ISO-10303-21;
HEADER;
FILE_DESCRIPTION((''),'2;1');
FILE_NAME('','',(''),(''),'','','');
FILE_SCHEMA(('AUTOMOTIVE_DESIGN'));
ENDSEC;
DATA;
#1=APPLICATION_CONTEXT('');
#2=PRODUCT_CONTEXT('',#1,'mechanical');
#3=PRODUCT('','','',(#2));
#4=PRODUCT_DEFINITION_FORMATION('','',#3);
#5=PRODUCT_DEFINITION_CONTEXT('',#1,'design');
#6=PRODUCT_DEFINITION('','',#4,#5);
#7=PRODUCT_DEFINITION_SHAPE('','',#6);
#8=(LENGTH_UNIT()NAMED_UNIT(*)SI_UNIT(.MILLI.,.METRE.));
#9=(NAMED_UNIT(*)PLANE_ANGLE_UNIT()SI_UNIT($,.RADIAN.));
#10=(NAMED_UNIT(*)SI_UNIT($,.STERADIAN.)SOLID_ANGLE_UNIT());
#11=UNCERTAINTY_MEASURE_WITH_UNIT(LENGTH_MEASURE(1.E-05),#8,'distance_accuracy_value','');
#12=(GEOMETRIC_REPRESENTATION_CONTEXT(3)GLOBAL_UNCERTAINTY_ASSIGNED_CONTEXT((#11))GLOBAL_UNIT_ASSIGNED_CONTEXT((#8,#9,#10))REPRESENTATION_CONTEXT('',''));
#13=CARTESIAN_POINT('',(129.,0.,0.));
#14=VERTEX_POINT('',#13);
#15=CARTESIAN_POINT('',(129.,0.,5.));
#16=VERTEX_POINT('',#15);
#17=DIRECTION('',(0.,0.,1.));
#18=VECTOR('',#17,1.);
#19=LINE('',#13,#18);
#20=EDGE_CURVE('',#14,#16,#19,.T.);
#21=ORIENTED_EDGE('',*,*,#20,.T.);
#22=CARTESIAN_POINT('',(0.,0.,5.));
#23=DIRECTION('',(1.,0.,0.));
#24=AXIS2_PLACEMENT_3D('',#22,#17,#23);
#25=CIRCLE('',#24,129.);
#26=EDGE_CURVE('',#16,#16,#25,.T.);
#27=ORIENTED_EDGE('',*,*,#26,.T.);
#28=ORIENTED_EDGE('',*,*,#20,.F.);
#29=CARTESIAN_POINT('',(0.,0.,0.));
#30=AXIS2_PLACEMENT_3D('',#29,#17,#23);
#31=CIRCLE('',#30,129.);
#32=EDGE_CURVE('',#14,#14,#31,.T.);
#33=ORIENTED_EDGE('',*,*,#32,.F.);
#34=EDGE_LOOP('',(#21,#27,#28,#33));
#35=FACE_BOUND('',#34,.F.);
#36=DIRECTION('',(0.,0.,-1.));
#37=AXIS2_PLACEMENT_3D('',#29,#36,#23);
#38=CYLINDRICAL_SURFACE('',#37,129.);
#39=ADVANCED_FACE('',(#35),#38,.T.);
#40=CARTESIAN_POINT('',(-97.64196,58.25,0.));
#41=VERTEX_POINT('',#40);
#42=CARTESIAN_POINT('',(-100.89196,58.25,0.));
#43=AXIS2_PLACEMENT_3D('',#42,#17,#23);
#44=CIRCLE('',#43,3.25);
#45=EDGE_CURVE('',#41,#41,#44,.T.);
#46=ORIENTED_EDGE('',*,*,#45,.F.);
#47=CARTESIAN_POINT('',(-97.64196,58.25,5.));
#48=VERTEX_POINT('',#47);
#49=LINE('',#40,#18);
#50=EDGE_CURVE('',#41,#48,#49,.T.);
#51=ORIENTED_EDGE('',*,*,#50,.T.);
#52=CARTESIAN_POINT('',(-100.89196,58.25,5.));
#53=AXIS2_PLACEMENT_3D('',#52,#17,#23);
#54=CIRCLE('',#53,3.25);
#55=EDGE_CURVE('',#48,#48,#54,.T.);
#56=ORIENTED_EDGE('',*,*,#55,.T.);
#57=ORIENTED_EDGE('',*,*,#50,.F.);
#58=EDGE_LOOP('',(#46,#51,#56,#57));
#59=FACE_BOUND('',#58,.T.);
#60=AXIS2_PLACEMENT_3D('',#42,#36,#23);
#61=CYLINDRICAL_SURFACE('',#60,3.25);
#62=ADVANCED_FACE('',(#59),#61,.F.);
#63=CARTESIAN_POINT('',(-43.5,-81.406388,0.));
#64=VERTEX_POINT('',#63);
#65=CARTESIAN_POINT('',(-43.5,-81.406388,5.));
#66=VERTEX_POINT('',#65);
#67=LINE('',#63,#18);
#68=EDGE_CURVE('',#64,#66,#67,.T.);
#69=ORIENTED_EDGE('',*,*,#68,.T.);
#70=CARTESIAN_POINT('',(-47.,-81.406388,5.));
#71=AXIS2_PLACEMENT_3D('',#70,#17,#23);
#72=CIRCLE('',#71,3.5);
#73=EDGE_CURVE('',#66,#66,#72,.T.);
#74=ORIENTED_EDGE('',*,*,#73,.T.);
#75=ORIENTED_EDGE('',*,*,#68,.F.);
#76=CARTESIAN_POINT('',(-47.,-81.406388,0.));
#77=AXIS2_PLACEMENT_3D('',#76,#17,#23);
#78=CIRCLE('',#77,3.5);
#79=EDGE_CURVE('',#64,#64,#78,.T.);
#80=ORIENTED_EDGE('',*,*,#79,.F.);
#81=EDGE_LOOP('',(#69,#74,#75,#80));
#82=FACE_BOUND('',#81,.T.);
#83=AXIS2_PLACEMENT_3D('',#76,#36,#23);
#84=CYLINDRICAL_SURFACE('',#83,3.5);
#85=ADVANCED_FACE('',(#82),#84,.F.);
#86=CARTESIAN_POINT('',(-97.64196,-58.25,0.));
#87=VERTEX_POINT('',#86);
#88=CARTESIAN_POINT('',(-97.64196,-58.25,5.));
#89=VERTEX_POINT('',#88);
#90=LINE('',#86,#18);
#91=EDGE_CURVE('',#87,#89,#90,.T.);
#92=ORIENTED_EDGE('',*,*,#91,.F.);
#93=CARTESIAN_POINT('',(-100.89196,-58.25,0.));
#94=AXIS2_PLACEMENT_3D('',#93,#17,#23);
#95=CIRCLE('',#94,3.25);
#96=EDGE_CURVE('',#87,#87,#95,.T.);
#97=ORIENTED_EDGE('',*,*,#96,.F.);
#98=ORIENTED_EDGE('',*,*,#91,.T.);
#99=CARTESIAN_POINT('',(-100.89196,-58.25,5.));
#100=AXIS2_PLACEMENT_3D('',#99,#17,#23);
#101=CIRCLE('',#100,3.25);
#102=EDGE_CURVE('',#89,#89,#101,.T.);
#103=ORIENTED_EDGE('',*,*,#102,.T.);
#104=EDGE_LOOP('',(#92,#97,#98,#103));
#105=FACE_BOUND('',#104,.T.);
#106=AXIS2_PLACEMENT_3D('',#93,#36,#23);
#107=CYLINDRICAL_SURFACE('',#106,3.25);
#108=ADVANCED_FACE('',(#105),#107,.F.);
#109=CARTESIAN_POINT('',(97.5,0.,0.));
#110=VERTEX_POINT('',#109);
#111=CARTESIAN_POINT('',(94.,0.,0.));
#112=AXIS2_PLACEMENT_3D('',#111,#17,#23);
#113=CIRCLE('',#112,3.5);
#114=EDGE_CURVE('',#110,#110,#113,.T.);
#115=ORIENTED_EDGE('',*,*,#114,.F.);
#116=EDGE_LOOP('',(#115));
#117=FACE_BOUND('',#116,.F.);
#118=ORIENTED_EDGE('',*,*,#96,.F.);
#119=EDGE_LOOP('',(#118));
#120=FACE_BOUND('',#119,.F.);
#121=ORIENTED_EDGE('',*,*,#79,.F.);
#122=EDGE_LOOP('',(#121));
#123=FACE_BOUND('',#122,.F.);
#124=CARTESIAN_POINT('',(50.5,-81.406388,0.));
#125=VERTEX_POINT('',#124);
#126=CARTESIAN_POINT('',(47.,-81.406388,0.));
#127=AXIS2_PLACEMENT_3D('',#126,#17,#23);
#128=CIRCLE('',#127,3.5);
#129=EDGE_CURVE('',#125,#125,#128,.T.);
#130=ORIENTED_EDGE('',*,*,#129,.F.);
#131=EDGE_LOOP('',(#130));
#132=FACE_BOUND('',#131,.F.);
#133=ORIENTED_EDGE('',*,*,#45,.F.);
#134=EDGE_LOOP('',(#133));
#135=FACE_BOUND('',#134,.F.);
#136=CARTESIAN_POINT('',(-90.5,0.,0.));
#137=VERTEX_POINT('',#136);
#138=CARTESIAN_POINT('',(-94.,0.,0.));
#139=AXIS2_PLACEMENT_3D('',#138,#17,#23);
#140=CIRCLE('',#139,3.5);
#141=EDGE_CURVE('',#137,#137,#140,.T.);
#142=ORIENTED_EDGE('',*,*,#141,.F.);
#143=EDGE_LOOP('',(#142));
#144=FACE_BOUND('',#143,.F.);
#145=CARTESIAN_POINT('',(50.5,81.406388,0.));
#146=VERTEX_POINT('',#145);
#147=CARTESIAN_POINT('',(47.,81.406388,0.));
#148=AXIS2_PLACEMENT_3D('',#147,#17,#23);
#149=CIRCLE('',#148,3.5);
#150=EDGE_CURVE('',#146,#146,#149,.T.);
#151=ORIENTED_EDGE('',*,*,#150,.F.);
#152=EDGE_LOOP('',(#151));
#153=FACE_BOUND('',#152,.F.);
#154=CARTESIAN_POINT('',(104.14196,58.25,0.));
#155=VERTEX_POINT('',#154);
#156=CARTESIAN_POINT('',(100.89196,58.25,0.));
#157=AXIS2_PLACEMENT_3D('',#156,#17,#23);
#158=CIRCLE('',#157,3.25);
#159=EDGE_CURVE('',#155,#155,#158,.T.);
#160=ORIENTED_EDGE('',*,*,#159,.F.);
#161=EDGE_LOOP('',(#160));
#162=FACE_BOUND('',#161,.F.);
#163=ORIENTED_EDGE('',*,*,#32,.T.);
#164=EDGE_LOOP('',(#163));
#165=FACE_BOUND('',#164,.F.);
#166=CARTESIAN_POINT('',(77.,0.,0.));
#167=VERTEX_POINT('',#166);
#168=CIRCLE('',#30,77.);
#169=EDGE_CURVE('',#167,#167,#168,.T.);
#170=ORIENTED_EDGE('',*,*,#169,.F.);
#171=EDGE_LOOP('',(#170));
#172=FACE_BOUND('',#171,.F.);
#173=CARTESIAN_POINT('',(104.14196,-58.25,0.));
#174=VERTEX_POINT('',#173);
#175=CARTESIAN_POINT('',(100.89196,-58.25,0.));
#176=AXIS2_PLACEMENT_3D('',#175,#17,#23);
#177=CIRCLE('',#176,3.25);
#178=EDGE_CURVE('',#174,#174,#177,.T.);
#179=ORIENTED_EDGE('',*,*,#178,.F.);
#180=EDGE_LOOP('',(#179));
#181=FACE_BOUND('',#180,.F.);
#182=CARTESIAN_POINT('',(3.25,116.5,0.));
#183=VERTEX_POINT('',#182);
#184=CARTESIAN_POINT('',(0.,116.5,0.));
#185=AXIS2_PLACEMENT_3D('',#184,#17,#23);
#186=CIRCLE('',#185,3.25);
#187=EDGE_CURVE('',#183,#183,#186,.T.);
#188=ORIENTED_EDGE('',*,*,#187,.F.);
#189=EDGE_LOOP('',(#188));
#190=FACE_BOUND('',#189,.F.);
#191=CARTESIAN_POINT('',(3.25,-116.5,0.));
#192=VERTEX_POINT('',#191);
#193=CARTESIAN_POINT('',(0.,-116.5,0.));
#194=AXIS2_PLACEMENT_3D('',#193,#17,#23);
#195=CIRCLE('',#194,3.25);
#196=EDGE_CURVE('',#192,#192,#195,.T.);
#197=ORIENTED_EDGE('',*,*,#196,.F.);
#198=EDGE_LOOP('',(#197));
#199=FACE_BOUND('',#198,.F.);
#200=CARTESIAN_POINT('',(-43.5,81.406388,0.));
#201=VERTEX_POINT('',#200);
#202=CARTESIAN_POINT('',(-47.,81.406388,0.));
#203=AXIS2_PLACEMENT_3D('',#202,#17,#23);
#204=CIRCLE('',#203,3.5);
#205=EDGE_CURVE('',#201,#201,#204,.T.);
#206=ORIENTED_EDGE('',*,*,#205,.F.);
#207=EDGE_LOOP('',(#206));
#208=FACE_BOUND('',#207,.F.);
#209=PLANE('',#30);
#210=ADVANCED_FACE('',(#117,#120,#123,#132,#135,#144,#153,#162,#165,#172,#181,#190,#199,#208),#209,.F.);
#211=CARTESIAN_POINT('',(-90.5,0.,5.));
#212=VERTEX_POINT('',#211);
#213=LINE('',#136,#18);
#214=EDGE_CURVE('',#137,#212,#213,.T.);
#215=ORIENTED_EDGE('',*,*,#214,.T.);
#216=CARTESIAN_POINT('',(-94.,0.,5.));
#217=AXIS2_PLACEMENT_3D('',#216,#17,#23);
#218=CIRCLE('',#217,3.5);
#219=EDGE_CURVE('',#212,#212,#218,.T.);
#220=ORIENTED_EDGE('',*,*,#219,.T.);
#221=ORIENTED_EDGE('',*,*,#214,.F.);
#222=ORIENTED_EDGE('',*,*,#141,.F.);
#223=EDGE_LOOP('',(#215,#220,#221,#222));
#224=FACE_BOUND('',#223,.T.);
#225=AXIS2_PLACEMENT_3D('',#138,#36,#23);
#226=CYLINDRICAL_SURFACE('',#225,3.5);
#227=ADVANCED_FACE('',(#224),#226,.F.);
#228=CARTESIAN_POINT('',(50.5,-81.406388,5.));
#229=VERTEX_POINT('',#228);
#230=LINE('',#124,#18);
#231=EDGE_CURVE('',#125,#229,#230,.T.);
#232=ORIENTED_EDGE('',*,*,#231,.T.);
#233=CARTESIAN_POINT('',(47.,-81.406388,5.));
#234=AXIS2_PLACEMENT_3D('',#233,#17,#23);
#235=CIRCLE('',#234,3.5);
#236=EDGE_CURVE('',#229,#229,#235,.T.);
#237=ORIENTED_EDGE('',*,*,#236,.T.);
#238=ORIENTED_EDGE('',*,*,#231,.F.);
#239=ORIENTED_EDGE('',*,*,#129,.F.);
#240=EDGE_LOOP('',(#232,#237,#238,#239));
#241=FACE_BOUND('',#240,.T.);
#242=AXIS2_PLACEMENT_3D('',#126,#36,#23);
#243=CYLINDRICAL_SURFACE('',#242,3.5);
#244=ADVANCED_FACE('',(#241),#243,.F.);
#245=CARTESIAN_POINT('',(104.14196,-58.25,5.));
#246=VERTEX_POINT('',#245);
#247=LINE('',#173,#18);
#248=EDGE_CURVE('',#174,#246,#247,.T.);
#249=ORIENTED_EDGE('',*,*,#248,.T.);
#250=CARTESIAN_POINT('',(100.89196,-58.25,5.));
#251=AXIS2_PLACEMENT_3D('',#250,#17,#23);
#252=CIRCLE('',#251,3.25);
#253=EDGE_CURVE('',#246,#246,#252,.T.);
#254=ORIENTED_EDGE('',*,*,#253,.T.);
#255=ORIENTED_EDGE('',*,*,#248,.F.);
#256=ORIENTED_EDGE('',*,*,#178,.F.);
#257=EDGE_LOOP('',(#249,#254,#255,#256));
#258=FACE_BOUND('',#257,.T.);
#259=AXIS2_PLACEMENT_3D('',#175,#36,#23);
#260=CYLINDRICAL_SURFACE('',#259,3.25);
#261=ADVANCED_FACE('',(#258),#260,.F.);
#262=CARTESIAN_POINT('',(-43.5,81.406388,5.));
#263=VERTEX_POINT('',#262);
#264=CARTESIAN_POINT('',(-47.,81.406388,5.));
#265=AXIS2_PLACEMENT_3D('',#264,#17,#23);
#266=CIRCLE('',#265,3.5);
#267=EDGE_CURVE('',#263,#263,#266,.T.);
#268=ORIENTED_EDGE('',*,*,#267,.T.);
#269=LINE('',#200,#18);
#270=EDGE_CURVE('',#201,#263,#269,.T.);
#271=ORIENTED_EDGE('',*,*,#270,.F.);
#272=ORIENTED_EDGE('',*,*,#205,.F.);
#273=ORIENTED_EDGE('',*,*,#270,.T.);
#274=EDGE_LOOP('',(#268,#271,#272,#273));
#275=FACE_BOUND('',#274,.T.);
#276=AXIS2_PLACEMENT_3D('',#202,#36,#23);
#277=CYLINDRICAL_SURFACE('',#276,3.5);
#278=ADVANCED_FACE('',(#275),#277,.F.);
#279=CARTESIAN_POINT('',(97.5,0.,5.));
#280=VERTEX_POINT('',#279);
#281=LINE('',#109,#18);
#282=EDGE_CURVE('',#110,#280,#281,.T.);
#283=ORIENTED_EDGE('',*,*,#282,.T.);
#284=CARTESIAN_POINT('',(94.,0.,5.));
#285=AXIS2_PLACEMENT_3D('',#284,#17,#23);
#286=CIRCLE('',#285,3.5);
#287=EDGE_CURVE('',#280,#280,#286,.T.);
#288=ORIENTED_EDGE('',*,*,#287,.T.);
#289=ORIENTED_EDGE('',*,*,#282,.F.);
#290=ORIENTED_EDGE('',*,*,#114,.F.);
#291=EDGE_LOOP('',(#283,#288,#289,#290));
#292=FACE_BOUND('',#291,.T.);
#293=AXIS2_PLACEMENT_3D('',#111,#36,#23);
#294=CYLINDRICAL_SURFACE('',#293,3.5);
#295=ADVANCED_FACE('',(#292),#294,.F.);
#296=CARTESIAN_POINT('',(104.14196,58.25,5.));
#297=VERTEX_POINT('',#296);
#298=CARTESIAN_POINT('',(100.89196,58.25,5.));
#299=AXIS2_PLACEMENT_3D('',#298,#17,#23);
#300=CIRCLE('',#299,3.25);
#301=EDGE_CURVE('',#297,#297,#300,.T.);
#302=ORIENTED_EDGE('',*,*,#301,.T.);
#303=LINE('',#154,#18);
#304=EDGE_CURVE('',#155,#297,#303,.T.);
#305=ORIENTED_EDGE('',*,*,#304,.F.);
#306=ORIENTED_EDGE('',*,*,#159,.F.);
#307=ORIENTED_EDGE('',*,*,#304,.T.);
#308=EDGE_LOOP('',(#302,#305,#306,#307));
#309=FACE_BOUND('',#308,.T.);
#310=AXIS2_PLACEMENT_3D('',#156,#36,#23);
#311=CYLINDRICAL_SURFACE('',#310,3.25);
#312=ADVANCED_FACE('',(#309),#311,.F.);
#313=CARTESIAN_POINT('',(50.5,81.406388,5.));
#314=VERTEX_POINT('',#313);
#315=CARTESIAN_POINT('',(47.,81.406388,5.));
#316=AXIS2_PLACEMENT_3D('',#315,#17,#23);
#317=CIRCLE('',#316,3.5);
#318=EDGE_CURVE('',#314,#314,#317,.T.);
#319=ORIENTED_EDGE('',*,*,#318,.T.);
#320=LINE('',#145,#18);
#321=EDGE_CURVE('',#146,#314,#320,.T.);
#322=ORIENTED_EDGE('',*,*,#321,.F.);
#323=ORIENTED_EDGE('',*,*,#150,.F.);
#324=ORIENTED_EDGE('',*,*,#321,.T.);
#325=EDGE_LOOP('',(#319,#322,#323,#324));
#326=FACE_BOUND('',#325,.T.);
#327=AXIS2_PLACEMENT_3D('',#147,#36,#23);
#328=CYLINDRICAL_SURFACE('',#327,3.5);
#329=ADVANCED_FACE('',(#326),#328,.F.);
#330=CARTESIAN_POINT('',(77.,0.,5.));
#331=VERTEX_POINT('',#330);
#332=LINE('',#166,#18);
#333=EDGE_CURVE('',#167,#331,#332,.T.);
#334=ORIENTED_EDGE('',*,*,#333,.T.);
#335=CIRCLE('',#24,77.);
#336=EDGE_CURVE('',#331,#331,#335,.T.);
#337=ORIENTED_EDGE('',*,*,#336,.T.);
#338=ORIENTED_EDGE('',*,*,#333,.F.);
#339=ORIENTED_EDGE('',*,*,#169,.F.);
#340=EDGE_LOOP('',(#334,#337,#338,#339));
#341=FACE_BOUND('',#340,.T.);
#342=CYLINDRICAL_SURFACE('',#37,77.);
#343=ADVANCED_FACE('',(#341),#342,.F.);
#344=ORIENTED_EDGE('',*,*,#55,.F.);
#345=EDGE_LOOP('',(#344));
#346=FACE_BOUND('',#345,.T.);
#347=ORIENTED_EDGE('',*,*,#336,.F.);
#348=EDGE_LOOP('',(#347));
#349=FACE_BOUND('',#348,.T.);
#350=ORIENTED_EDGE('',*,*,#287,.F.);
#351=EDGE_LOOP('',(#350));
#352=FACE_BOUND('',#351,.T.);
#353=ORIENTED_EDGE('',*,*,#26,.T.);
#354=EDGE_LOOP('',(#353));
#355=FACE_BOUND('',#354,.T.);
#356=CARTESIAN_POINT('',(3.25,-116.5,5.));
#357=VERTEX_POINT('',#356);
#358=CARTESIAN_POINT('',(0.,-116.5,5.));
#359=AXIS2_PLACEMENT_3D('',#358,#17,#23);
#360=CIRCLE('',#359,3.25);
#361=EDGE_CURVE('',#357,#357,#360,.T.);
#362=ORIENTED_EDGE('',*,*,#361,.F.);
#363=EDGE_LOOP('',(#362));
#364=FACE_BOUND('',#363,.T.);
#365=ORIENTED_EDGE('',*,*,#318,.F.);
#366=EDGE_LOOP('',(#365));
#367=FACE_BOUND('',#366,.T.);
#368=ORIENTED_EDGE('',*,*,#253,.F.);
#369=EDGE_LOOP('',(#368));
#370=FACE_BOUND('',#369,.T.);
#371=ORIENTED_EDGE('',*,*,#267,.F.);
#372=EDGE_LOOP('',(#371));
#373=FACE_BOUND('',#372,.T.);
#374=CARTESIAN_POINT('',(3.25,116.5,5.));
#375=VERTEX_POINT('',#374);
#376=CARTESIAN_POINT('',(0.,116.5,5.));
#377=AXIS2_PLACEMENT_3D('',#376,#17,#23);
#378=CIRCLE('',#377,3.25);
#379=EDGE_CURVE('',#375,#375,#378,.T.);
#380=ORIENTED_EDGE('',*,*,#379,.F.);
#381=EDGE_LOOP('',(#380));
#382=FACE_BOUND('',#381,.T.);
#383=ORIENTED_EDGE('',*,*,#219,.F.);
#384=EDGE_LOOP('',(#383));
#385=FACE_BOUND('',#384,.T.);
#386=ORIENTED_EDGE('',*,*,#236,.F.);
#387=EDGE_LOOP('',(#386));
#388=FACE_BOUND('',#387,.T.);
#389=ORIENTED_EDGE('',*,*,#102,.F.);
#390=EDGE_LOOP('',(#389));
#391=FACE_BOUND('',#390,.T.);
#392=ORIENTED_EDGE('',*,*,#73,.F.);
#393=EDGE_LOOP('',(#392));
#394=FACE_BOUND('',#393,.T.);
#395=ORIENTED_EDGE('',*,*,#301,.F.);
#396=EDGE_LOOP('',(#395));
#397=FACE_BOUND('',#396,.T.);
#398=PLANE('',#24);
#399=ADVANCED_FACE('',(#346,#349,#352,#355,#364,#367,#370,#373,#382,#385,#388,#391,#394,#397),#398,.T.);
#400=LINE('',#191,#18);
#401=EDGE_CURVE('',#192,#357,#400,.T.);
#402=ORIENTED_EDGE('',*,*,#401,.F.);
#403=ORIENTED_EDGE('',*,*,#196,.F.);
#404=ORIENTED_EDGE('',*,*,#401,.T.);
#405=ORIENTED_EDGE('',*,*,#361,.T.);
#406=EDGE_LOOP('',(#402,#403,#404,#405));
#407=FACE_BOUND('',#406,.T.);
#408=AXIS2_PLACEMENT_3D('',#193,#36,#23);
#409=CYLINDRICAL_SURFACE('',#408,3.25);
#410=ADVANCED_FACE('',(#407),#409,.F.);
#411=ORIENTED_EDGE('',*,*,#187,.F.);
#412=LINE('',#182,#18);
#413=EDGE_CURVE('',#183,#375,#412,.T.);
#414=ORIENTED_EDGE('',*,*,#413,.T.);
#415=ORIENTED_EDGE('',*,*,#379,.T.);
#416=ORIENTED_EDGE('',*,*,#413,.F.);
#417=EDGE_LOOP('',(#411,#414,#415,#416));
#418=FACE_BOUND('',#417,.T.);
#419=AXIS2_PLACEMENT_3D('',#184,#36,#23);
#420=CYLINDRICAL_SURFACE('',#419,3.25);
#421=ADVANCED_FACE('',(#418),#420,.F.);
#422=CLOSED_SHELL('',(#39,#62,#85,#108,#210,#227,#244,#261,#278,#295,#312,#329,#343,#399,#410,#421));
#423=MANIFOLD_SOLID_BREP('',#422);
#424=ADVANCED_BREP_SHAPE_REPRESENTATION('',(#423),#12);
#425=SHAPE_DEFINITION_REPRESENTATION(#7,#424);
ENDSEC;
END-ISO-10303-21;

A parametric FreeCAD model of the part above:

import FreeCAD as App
import Part
import Sketcher

V = App.Vector

doc = App.newDocument("Part")
body = doc.addObject("PartDesign::Body", "Body")

# Sketch on XY plane
sketch1 = body.newObject("Sketcher::SketchObject", "Sketch")
sketch1.AttachmentSupport = (doc.getObject("XY_Plane"), [""])
sketch1.MapMode = "FlatFace"
sketch1.addGeometry([
    Part.Circle(V(0, 0, 0), V(0, 0, 1), 129),  # 0
    Part.Circle(V(-47, -81.406388, 0), V(0, 0, 1), 3.5),  # 1
    Part.Circle(V(-100.89196, -58.25, 0), V(0, 0, 1), 3.25),  # 2
    Part.Circle(V(-94, 0, 0), V(0, 0, 1), 3.5),  # 3
    Part.Circle(V(0, -116.5, 0), V(0, 0, 1), 3.25),  # 4
    Part.Circle(V(47, -81.406388, 0), V(0, 0, 1), 3.5),  # 5
    Part.Circle(V(0, 0, 0), V(0, 0, 1), 77),  # 6
    Part.Circle(V(100.89196, -58.25, 0), V(0, 0, 1), 3.25),  # 7
    Part.Circle(V(94, 0, 0), V(0, 0, 1), 3.5),  # 8
    Part.Circle(V(-100.89196, 58.25, 0), V(0, 0, 1), 3.25),  # 9
    Part.Circle(V(-47, 81.406388, 0), V(0, 0, 1), 3.5),  # 10
    Part.Circle(V(100.89196, 58.25, 0), V(0, 0, 1), 3.25),  # 11
    Part.Circle(V(47, 81.406388, 0), V(0, 0, 1), 3.5),  # 12
    Part.Circle(V(0, 116.5, 0), V(0, 0, 1), 3.25),  # 13
], False)
sketch1.addConstraint([
    Sketcher.Constraint("Coincident", 0, 3, -1, 1),
    Sketcher.Constraint("Coincident", 6, 3, -1, 1),
    Sketcher.Constraint("Equal", 1, 3),
    Sketcher.Constraint("Equal", 2, 4),
    Sketcher.Constraint("Equal", 3, 5),
    Sketcher.Constraint("Equal", 4, 7),
    Sketcher.Constraint("Equal", 5, 8),
    Sketcher.Constraint("Equal", 7, 9),
    Sketcher.Constraint("Equal", 8, 10),
    Sketcher.Constraint("Equal", 9, 11),
    Sketcher.Constraint("Equal", 10, 12),
    Sketcher.Constraint("Equal", 11, 13),
    Sketcher.Constraint("Symmetric", 3, 3, 8, 3, -1, 1),
    Sketcher.Constraint("Symmetric", 7, 3, 9, 3, -1, 1),
    Sketcher.Constraint("Symmetric", 5, 3, 10, 3, -1, 1),
    Sketcher.Constraint("Symmetric", 2, 3, 11, 3, -1, 1),
    Sketcher.Constraint("Symmetric", 1, 3, 12, 3, -1, 1),
    Sketcher.Constraint("Symmetric", 4, 3, 13, 3, -1, 1),
    Sketcher.Constraint("Symmetric", 1, 3, 5, 3, -2),
    Sketcher.Constraint("Symmetric", 2, 3, 7, 3, -2),
    Sketcher.Constraint("PointOnObject", 3, 3, -1),
    Sketcher.Constraint("PointOnObject", 4, 3, -2),
    Sketcher.Constraint("Diameter", 0, 258.0),
    Sketcher.Constraint("Diameter", 1, 7.0),
    Sketcher.Constraint("Diameter", 6, 154.0),
    Sketcher.Constraint("Diameter", 2, 6.5),
    Sketcher.Constraint("DistanceX", 1, 3, -1, 1, 47.0),
    Sketcher.Constraint("DistanceX", 3, 3, -1, 1, 94.0),
    Sketcher.Constraint("DistanceY", 4, 3, -1, 1, 116.5),
    Sketcher.Constraint("DistanceY", 2, 3, 9, 3, 116.5),
    Sketcher.Constraint("DistanceY", 1, 3, -1, 1, 81.406388),
    Sketcher.Constraint("DistanceX", 2, 3, -1, 1, 100.89196),
])
pad1 = body.newObject("PartDesign::Pad", "Pad")
pad1.Profile = sketch1
pad1.Length = 5

doc.recompute()
